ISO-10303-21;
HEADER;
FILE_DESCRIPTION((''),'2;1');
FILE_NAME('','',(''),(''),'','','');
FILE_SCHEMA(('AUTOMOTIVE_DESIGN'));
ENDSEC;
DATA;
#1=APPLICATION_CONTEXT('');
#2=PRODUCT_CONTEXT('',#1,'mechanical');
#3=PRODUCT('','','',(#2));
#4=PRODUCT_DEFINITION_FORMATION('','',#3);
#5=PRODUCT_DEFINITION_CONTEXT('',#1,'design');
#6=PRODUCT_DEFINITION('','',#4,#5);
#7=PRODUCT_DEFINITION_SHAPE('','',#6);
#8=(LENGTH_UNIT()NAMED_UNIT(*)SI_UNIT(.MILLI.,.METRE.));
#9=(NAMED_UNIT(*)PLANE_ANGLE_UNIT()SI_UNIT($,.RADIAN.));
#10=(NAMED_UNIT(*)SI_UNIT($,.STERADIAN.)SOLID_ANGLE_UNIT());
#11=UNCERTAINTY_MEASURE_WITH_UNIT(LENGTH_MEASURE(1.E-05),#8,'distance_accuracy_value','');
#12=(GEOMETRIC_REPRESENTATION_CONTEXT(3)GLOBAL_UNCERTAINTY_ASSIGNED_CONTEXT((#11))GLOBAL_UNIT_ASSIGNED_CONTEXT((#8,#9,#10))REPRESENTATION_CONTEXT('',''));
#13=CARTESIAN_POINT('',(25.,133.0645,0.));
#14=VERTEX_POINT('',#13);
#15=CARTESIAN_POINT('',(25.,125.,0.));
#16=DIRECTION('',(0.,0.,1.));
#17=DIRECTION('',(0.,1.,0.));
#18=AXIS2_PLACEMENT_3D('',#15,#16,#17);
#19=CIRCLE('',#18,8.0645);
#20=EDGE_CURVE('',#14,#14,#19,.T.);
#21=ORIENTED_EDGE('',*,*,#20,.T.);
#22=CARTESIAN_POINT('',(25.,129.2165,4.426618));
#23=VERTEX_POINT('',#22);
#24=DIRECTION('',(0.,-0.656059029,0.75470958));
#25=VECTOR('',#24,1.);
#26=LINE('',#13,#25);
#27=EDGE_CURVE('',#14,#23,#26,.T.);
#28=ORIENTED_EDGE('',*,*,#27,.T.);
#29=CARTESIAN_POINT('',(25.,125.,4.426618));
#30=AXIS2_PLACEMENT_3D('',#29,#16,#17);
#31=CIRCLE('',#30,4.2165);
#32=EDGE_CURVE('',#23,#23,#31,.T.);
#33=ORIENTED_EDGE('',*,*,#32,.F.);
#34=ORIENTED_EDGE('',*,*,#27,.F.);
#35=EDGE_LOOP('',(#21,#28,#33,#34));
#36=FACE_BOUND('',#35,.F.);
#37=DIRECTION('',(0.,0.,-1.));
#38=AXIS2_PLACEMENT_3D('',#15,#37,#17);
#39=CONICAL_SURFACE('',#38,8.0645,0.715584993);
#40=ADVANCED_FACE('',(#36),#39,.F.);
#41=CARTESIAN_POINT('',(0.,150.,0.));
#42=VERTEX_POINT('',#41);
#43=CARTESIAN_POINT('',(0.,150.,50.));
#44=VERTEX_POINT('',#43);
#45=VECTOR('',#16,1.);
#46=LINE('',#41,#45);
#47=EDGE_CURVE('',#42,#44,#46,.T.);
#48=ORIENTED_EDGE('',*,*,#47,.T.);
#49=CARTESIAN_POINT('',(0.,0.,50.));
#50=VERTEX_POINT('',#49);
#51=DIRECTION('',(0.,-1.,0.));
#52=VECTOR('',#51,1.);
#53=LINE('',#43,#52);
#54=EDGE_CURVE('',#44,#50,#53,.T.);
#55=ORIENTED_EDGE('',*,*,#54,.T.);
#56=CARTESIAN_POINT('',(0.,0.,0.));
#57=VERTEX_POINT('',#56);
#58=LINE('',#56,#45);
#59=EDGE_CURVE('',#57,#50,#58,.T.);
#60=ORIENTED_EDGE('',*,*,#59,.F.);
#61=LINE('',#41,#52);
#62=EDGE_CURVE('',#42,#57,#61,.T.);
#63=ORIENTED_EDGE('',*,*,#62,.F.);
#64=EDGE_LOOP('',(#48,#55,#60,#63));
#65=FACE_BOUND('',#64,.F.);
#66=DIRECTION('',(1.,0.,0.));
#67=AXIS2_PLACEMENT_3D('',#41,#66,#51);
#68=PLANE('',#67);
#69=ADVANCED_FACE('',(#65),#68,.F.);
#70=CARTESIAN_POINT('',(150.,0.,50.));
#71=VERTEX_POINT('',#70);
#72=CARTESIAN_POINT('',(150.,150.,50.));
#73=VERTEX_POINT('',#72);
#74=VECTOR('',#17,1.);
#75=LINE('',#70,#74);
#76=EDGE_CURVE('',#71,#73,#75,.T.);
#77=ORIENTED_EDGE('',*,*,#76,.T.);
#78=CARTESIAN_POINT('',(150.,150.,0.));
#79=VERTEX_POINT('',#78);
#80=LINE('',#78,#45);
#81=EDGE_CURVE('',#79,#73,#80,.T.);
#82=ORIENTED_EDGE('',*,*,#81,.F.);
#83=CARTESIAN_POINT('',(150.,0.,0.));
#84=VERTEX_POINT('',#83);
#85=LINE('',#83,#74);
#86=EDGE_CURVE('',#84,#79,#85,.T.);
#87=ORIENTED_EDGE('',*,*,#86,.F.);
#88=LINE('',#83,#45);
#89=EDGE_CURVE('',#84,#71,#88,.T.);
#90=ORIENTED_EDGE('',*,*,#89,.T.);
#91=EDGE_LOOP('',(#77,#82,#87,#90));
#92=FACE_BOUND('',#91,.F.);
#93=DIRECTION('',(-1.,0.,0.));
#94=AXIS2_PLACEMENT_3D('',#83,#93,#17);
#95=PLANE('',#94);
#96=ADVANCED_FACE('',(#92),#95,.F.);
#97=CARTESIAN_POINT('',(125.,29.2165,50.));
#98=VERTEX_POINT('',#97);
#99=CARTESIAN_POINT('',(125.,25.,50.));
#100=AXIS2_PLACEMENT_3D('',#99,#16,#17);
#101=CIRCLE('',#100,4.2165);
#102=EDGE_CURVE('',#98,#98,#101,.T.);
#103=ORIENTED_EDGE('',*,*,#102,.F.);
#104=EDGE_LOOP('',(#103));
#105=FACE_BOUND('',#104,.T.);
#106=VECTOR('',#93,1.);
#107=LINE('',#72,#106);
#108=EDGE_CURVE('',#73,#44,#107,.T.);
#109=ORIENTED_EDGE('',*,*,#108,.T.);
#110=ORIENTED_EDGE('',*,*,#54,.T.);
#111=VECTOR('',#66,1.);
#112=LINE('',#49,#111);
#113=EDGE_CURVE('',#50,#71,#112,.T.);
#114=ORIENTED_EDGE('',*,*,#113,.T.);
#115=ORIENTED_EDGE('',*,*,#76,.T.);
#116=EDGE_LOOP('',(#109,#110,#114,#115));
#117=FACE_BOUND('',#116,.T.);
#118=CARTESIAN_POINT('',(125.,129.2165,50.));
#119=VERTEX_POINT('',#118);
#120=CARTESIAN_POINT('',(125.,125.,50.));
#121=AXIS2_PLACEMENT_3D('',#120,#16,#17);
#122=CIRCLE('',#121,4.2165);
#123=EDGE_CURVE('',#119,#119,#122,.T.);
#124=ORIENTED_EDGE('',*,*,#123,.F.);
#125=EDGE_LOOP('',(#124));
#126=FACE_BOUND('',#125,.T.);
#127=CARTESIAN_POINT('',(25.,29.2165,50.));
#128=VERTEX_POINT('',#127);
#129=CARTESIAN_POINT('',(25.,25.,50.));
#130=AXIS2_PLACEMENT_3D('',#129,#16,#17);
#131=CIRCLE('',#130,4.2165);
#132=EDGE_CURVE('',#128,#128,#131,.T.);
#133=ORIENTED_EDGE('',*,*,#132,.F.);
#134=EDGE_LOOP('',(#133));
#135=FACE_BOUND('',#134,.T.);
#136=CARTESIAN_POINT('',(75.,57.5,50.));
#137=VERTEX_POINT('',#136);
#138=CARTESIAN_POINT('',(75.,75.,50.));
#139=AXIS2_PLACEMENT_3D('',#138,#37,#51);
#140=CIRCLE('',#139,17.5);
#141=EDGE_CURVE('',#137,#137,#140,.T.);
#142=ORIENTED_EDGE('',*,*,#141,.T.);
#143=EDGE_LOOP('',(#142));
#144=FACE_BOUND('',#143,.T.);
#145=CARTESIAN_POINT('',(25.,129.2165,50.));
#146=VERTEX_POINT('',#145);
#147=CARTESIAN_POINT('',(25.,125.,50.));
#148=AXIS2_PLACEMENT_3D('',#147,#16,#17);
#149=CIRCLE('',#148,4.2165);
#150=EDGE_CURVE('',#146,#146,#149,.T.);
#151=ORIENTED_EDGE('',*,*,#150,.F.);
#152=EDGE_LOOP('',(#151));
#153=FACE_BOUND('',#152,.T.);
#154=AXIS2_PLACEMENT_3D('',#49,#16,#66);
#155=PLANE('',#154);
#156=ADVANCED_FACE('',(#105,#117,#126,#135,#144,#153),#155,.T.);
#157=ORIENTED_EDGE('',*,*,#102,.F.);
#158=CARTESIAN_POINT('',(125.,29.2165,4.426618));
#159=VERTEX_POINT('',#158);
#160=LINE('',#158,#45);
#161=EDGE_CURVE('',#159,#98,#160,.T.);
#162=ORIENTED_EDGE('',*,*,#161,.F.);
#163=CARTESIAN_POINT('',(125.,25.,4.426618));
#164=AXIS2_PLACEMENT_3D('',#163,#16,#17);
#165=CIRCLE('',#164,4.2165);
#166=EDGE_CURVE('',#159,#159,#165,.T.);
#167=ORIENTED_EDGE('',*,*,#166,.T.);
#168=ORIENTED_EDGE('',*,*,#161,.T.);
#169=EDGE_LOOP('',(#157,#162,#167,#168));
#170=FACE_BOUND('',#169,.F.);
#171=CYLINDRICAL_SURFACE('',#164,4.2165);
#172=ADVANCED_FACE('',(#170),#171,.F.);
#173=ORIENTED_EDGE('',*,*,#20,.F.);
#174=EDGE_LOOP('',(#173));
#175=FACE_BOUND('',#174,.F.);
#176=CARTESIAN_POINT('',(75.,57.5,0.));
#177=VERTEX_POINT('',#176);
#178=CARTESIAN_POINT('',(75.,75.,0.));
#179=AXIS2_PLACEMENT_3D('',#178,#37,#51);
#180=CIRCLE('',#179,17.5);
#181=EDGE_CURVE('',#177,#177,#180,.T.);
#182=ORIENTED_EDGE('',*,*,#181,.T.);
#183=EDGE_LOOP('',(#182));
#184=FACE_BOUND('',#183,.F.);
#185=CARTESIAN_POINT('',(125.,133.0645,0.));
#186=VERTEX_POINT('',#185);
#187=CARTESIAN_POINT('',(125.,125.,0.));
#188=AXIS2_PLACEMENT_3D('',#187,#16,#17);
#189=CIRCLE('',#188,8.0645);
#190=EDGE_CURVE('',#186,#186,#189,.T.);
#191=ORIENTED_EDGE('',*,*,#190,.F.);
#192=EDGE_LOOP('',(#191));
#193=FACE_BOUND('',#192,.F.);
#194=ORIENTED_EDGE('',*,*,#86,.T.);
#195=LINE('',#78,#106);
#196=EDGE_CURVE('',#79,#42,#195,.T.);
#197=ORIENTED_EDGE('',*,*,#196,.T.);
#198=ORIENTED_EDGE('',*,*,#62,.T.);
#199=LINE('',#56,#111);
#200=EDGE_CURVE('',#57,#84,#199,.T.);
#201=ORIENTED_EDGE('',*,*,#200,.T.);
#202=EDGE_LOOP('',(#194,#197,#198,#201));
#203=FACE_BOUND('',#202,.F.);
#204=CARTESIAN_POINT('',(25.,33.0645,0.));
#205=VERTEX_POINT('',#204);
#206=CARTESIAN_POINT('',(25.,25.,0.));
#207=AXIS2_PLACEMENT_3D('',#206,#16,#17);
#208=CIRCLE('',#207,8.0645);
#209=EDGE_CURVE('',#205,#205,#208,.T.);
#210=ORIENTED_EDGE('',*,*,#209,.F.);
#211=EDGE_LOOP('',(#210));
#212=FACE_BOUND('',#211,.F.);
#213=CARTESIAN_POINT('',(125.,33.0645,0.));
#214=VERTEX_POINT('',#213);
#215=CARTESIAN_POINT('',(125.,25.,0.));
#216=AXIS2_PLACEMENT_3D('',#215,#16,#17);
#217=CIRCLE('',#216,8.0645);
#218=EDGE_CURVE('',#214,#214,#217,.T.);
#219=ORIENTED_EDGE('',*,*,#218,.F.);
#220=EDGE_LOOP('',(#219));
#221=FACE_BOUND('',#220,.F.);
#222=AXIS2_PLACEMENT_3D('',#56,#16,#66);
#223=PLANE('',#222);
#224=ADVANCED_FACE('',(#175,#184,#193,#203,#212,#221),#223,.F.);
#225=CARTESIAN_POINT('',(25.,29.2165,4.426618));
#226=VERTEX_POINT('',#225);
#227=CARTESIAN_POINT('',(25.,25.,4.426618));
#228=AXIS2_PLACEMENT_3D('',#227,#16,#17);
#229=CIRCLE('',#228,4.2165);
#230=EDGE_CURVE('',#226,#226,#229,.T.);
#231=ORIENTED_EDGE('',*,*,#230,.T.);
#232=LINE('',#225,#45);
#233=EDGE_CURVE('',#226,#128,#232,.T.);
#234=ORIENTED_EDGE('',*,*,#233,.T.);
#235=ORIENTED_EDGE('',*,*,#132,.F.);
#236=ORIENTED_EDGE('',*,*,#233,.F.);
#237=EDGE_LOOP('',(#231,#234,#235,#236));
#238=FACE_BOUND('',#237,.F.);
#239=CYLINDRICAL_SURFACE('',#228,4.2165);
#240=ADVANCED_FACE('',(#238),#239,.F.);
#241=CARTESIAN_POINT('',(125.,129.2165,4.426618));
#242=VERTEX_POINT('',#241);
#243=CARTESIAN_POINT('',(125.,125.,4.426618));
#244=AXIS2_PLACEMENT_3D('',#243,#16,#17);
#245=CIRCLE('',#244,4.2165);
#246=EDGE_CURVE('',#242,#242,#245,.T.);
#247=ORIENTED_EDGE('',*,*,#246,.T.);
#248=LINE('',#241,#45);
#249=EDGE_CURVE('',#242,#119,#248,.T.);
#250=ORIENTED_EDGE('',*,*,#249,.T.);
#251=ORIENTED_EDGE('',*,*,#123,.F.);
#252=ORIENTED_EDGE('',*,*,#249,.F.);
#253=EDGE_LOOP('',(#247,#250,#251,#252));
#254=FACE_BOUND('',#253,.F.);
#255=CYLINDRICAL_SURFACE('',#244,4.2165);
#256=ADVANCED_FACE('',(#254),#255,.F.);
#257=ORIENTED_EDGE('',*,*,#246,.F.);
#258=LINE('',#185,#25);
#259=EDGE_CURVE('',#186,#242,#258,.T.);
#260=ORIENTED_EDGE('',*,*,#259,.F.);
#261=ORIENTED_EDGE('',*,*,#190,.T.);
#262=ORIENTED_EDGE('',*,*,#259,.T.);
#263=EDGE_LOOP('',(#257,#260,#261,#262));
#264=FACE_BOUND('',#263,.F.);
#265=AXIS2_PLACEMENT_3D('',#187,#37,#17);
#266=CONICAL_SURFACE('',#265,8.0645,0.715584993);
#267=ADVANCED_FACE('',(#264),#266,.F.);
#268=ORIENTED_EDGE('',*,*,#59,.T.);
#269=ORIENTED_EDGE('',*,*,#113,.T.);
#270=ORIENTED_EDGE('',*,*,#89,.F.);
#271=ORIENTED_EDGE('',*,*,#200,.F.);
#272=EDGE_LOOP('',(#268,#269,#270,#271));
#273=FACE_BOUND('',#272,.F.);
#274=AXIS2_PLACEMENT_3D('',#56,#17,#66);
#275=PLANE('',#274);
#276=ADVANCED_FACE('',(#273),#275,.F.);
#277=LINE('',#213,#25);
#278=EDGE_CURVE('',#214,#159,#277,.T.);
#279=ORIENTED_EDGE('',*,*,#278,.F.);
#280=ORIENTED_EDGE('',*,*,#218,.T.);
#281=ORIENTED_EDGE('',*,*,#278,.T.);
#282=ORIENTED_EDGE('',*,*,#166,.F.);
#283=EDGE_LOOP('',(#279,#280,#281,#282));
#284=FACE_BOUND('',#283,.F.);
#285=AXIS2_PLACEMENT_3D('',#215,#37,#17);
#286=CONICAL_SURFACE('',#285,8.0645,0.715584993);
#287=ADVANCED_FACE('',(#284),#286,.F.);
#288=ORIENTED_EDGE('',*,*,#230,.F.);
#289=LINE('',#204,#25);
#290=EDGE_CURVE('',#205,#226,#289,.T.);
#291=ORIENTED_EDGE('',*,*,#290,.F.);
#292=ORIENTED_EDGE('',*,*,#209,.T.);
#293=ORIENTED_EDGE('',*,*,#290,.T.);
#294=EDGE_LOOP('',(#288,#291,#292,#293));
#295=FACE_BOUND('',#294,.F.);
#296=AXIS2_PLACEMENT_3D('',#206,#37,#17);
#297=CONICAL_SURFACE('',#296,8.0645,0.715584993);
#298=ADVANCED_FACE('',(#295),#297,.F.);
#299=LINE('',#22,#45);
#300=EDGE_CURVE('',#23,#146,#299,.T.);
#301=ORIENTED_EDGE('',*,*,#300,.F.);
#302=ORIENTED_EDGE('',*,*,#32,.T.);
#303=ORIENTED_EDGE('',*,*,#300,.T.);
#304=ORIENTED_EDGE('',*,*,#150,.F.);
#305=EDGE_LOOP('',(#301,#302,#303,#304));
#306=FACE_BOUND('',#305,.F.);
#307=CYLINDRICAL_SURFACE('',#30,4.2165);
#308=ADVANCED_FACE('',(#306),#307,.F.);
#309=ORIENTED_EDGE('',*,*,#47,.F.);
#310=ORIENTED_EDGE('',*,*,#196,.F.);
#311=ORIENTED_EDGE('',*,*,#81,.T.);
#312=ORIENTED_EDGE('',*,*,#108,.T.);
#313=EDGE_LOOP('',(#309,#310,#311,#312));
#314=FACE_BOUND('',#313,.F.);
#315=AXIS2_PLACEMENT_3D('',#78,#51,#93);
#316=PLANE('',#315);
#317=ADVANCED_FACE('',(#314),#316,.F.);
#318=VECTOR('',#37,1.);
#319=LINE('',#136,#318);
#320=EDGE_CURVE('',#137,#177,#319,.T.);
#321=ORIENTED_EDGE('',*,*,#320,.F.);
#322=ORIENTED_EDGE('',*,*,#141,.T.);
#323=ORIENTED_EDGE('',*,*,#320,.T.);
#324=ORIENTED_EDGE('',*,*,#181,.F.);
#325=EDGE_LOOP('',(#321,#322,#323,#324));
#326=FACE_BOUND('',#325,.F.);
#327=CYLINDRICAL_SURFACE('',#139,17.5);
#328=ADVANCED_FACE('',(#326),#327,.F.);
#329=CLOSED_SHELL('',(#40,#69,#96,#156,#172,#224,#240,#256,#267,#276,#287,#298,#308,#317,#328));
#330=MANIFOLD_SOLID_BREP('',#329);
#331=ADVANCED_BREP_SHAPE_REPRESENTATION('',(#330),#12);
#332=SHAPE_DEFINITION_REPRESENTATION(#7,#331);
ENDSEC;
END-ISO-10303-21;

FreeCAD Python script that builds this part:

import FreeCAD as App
import Part
import Sketcher

doc = App.newDocument("Part")
body = doc.addObject("PartDesign::Body", "Body")

# Sketch on XY plane
sketch1 = doc.addObject("Sketcher::SketchObject", "Sketch")
body.addObject(sketch1)
sketch1.AttachmentSupport = (doc.XY_Plane, [""])
sketch1.MapMode = "FlatFace"
sketch1.addGeometry(Part.LineSegment(App.Vector(0, 150, 0), App.Vector(0, 0, 0)), False)
sketch1.addGeometry(Part.LineSegment(App.Vector(0, 0, 0), App.Vector(150, 0, 0)), False)
sketch1.addGeometry(Part.LineSegment(App.Vector(150, 0, 0), App.Vector(150, 150, 0)), False)
sketch1.addGeometry(Part.LineSegment(App.Vector(150, 150, 0), App.Vector(0, 150, 0)), False)
sketch1.addConstraint(Sketcher.Constraint("Coincident", 0, 2, 1, 1))
sketch1.addConstraint(Sketcher.Constraint("Coincident", 1, 2, 2, 1))
sketch1.addConstraint(Sketcher.Constraint("Coincident", 2, 2, 3, 1))
sketch1.addConstraint(Sketcher.Constraint("Coincident", 3, 2, 0, 1))
sketch1.addConstraint(Sketcher.Constraint("Vertical", 0))
sketch1.addConstraint(Sketcher.Constraint("Horizontal", 1))
sketch1.addConstraint(Sketcher.Constraint("Vertical", 2))
sketch1.addConstraint(Sketcher.Constraint("Horizontal", 3))
sketch1.addConstraint(Sketcher.Constraint("Coincident", 0, 2, -1, 1))
sketch1.addConstraint(Sketcher.Constraint("Equal", 3, 0))
sketch1.addConstraint(Sketcher.Constraint("DistanceX", 1, 1, 1, 2, 150.0))
pad1 = doc.addObject("PartDesign::Pad", "Pad")
body.addObject(pad1)
pad1.Profile = sketch1
pad1.Length = 50

# Sketch on XY plane
sketch2 = doc.addObject("Sketcher::SketchObject", "Sketch001")
body.addObject(sketch2)
sketch2.AttachmentSupport = (doc.XY_Plane, [""])
sketch2.MapMode = "FlatFace"
sketch2.AttachmentOffset = App.Placement(App.Vector(0, 0, 50), App.Rotation())
sketch2.addGeometry(Part.Circle(App.Vector(75, 75, 0), App.Vector(0, 0, 1), 18), False)
sketch2.addConstraint(Sketcher.Constraint("Diameter", 0, 35.0))
sketch2.addConstraint(Sketcher.Constraint("DistanceX", -1, 1, 0, 3, 75.0))
sketch2.addConstraint(Sketcher.Constraint("DistanceY", -1, 1, 0, 3, 75.0))
doc.recompute()
hole = doc.addObject("PartDesign::Hole", "Hole")
body.addObject(hole)
hole.Profile = sketch2
hole.ThreadType = "None"
hole.Diameter = 35
hole.DepthType = "ThroughAll"

# Sketch on XY plane
sketch3 = doc.addObject("Sketcher::SketchObject", "Sketch002")
body.addObject(sketch3)
sketch3.AttachmentSupport = (doc.XY_Plane, [""])
sketch3.MapMode = "FlatFace"
sketch3.addGeometry(Part.Circle(App.Vector(125, 125, 0), App.Vector(0, 0, 1), 4.2), False)
sketch3.addGeometry(Part.Circle(App.Vector(25, 125, 0), App.Vector(0, 0, 1), 4.2), False)
sketch3.addGeometry(Part.Circle(App.Vector(25, 25, 0), App.Vector(0, 0, 1), 4.2), False)
sketch3.addGeometry(Part.Circle(App.Vector(125, 25, 0), App.Vector(0, 0, 1), 4.2), False)
sketch3.addConstraint(Sketcher.Constraint("Equal", 0, 1))
sketch3.addConstraint(Sketcher.Constraint("Equal", 1, 2))
sketch3.addConstraint(Sketcher.Constraint("Equal", 2, 3))
sketch3.addConstraint(Sketcher.Constraint("Horizontal", 0, 3, 1, 3))
sketch3.addConstraint(Sketcher.Constraint("Horizontal", 2, 3, 3, 3))
sketch3.addConstraint(Sketcher.Constraint("Vertical", 1, 3, 2, 3))
sketch3.addConstraint(Sketcher.Constraint("Vertical", 0, 3, 3, 3))
sketch3.addConstraint(Sketcher.Constraint("Diameter", 0, 8.433))
sketch3.addConstraint(Sketcher.Constraint("DistanceX", -1, 1, 0, 3, 125.0))
sketch3.addConstraint(Sketcher.Constraint("DistanceY", -1, 1, 0, 3, 125.0))
sketch3.addConstraint(Sketcher.Constraint("DistanceX", -1, 1, 1, 3, 25.0))
sketch3.addConstraint(Sketcher.Constraint("DistanceY", -1, 1, 2, 3, 25.0))
doc.recompute()
hole2 = doc.addObject("PartDesign::Hole", "Hole001")
body.addObject(hole2)
hole2.Profile = sketch3
hole2.ThreadType = "None"
hole2.Diameter = 8.433
hole2.DepthType = "ThroughAll"
hole2.HoleCutType = "Countersink"
hole2.HoleCutDiameter = 16.129
hole2.HoleCutCountersinkAngle = 82
hole2.Reversed = True

doc.recompute()
